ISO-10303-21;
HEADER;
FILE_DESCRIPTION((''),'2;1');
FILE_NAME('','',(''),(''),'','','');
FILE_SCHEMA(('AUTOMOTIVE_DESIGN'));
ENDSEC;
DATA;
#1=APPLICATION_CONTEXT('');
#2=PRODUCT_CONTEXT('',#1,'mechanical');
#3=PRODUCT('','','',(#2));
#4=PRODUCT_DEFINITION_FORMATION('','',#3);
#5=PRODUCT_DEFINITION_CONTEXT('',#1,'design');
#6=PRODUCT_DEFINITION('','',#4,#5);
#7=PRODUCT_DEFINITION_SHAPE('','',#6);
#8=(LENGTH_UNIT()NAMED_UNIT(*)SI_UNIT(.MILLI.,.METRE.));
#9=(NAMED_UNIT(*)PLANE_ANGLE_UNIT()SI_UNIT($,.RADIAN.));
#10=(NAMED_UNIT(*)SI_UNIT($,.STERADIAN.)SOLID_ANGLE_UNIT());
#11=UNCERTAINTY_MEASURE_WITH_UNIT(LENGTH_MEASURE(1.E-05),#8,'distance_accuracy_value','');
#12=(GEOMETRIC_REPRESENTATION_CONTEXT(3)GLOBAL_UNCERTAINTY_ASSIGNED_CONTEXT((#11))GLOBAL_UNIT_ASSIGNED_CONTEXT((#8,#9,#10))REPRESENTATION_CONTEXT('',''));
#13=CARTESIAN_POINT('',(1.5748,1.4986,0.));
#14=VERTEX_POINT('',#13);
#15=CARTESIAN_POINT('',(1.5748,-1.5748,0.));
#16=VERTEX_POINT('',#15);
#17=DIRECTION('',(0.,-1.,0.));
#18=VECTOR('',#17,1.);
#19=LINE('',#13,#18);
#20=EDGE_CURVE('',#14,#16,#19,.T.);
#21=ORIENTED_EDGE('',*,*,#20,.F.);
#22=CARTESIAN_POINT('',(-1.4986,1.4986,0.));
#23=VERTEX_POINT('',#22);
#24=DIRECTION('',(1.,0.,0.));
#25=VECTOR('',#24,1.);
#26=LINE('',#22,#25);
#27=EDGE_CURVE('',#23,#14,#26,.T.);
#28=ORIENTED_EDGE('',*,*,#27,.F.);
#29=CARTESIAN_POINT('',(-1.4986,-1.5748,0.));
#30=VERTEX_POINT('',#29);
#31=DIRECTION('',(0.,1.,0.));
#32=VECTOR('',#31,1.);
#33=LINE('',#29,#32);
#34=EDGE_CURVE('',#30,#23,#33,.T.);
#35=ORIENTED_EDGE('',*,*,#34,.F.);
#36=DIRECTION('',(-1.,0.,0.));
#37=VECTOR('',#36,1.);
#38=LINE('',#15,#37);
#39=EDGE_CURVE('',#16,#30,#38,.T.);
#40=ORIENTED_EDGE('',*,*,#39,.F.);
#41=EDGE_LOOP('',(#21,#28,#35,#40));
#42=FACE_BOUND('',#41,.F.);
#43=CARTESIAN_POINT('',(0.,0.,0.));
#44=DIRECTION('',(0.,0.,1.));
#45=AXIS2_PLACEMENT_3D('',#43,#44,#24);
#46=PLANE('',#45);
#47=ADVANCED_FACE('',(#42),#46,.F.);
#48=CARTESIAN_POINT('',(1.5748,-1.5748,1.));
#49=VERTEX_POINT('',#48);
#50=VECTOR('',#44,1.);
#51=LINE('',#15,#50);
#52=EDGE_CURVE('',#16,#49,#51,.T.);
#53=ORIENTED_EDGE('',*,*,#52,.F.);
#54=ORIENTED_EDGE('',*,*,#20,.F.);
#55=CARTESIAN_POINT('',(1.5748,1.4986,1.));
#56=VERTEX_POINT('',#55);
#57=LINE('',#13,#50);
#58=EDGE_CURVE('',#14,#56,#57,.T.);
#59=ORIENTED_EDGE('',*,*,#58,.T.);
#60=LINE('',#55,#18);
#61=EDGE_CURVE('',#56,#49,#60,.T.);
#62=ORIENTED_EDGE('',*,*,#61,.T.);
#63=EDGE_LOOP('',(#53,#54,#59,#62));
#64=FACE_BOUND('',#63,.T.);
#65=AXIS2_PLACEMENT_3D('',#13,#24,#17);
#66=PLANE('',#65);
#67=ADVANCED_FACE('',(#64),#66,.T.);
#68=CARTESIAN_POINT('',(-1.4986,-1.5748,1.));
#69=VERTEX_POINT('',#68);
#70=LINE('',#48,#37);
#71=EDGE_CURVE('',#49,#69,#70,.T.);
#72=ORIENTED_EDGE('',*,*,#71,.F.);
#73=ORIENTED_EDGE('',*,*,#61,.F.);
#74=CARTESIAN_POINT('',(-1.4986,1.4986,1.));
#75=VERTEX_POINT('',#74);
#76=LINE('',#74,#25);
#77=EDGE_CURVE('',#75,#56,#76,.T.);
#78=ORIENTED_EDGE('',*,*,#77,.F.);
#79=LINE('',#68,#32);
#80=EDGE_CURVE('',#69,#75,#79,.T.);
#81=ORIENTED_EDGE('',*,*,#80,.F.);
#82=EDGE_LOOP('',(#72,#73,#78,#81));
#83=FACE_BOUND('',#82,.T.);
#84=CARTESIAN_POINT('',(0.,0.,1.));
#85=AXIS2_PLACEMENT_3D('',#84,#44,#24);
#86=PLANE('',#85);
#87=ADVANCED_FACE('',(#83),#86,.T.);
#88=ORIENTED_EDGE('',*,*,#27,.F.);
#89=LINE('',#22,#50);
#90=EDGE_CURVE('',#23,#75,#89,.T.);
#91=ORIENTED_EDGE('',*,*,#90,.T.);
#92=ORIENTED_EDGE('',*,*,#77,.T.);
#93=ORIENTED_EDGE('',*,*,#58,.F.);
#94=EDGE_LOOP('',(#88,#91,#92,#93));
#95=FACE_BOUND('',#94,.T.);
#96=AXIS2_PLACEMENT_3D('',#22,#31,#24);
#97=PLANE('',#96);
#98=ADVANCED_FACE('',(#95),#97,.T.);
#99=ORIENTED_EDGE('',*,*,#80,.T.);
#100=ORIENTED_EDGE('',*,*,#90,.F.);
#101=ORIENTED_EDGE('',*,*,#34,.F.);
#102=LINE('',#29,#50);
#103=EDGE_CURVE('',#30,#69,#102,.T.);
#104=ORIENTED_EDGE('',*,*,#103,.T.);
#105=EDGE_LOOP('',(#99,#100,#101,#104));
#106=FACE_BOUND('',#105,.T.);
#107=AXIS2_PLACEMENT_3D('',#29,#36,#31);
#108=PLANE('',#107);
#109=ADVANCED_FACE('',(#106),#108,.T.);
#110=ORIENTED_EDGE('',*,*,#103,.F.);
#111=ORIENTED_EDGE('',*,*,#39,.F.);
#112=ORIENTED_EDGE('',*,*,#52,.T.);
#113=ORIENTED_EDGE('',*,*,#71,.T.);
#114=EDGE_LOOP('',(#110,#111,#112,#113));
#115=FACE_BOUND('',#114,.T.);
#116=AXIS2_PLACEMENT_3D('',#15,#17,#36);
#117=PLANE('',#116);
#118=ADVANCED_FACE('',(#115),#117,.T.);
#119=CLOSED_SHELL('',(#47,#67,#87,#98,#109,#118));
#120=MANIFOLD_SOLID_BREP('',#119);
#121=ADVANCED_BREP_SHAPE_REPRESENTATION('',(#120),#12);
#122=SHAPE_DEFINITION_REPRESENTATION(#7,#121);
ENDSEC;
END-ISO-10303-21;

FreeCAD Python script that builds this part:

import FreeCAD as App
import Part
import Sketcher
from FreeCAD import Vector

doc = App.newDocument("Part")
body = doc.addObject("PartDesign::Body", "Body")

# Sketch on XY plane
sketch1 = body.newObject("Sketcher::SketchObject", "Sketch")
sketch1.AttachmentSupport = (doc.getObject("XY_Plane"), [""])
sketch1.MapMode = "FlatFace"
sketch1.addGeometry(Part.LineSegment(Vector(1.6, 1.5, 0), Vector(-1.5, 1.5, 0)), False)
sketch1.addGeometry(Part.LineSegment(Vector(-1.5, 1.5, 0), Vector(-1.5, -1.6, 0)), False)
sketch1.addGeometry(Part.LineSegment(Vector(-1.5, -1.6, 0), Vector(1.6, -1.6, 0)), False)
sketch1.addGeometry(Part.LineSegment(Vector(1.6, -1.6, 0), Vector(1.6, 1.5, 0)), False)
sketch1.addConstraint(Sketcher.Constraint("Coincident", 0, 2, 1, 1))
sketch1.addConstraint(Sketcher.Constraint("Coincident", 1, 2, 2, 1))
sketch1.addConstraint(Sketcher.Constraint("Coincident", 2, 2, 3, 1))
sketch1.addConstraint(Sketcher.Constraint("Coincident", 3, 2, 0, 1))
sketch1.addConstraint(Sketcher.Constraint("Horizontal", 0))
sketch1.addConstraint(Sketcher.Constraint("Vertical", 1))
sketch1.addConstraint(Sketcher.Constraint("Horizontal", 2))
sketch1.addConstraint(Sketcher.Constraint("Vertical", 3))
sketch1.addConstraint(Sketcher.Constraint("Equal", 2, 1))
sketch1.addConstraint(Sketcher.Constraint("DistanceX", 0, 2, 0, 1, 3.0734))
sketch1.addConstraint(Sketcher.Constraint("DistanceX", 0, 2, -1, 1, 1.4986))
sketch1.addConstraint(Sketcher.Constraint("DistanceY", -1, 1, 0, 2, 1.4986))
pad1 = body.newObject("PartDesign::Pad", "Pad")
pad1.Profile = sketch1
pad1.Length = 1

doc.recompute()
